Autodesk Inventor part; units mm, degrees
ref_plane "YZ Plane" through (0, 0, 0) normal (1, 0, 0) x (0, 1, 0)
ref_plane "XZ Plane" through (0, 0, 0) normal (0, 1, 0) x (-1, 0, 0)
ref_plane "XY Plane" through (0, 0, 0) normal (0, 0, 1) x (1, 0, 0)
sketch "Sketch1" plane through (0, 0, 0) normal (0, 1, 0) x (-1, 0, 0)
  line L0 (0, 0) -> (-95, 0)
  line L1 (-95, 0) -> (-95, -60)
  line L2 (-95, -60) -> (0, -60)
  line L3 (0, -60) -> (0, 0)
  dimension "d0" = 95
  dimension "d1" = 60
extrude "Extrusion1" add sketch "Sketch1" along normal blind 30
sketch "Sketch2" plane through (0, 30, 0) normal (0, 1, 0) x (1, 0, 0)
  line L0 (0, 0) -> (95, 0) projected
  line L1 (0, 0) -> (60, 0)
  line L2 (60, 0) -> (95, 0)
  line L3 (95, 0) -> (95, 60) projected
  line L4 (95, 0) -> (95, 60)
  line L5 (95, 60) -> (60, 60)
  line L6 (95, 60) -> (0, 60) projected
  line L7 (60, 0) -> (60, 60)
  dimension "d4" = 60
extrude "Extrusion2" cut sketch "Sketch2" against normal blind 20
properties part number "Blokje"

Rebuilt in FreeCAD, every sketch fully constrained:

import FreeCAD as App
import Part
import Sketcher
from FreeCAD import Vector


def add_polygon(sketch, points):
    """Adds a closed chain of lines whose ends are joined by coincident constraints."""
    first, n = sketch.GeometryCount, len(points)
    for a, b in zip(points, points[1:] + points[:1]):
        sketch.addGeometry(Part.LineSegment(App.Vector(*a, 0), App.Vector(*b, 0)), False)
    for i in range(n):
        sketch.addConstraint(Sketcher.Constraint("Coincident", first + i, 2, first + (i + 1) % n, 1))

doc = App.newDocument("Part")
body = doc.addObject("PartDesign::Body", "Body")

# Sketch on XZ plane
sketch1 = body.newObject("Sketcher::SketchObject", "Sketch")
sketch1.AttachmentSupport = (doc.getObject("XZ_Plane"), [""])
sketch1.MapMode = "FlatFace"
add_polygon(sketch1, [(0, -60), (0, 0), (95, 0), (95, -60)])  # lines 0-3
sketch1.addConstraint(Sketcher.Constraint("Vertical", 0))
sketch1.addConstraint(Sketcher.Constraint("Horizontal", 1))
sketch1.addConstraint(Sketcher.Constraint("Vertical", 2))
sketch1.addConstraint(Sketcher.Constraint("Horizontal", 3))
sketch1.addConstraint(Sketcher.Constraint("Coincident", 0, 2, -1, 1))
sketch1.addConstraint(Sketcher.Constraint("DistanceX", 1, 1, 1, 2, 95.0))
sketch1.addConstraint(Sketcher.Constraint("DistanceY", 0, 1, 0, 2, 60.0))
pad1 = body.newObject("PartDesign::Pad", "Pad")
pad1.Profile = sketch1
pad1.Length = 30
pad1.Reversed = True

# Sketch on XZ plane
sketch2 = body.newObject("Sketcher::SketchObject", "Sketch001")
sketch2.AttachmentSupport = (doc.getObject("XZ_Plane"), [""])
sketch2.MapMode = "FlatFace"
sketch2.AttachmentOffset = App.Placement(Vector(0, 0, -30), App.Rotation())
add_polygon(sketch2, [(60, -60), (60, 0), (95, 0), (95, -60)])  # lines 0-3
sketch2.addConstraint(Sketcher.Constraint("Vertical", 0))
sketch2.addConstraint(Sketcher.Constraint("Horizontal", 1))
sketch2.addConstraint(Sketcher.Constraint("Vertical", 2))
sketch2.addConstraint(Sketcher.Constraint("Horizontal", 3))
sketch2.addConstraint(Sketcher.Constraint("PointOnObject", 0, 2, -1))
sketch2.addConstraint(Sketcher.Constraint("DistanceY", 0, 1, 0, 2, 60.0))
sketch2.addConstraint(Sketcher.Constraint("DistanceX", -1, 1, 0, 2, 60.0))
sketch2.addConstraint(Sketcher.Constraint("DistanceX", 1, 1, 1, 2, 35.0))
pocket1 = body.newObject("PartDesign::Pocket", "Pocket")
pocket1.Profile = sketch2
pocket1.Length = 20
pocket1.Reversed = True

doc.recompute()
